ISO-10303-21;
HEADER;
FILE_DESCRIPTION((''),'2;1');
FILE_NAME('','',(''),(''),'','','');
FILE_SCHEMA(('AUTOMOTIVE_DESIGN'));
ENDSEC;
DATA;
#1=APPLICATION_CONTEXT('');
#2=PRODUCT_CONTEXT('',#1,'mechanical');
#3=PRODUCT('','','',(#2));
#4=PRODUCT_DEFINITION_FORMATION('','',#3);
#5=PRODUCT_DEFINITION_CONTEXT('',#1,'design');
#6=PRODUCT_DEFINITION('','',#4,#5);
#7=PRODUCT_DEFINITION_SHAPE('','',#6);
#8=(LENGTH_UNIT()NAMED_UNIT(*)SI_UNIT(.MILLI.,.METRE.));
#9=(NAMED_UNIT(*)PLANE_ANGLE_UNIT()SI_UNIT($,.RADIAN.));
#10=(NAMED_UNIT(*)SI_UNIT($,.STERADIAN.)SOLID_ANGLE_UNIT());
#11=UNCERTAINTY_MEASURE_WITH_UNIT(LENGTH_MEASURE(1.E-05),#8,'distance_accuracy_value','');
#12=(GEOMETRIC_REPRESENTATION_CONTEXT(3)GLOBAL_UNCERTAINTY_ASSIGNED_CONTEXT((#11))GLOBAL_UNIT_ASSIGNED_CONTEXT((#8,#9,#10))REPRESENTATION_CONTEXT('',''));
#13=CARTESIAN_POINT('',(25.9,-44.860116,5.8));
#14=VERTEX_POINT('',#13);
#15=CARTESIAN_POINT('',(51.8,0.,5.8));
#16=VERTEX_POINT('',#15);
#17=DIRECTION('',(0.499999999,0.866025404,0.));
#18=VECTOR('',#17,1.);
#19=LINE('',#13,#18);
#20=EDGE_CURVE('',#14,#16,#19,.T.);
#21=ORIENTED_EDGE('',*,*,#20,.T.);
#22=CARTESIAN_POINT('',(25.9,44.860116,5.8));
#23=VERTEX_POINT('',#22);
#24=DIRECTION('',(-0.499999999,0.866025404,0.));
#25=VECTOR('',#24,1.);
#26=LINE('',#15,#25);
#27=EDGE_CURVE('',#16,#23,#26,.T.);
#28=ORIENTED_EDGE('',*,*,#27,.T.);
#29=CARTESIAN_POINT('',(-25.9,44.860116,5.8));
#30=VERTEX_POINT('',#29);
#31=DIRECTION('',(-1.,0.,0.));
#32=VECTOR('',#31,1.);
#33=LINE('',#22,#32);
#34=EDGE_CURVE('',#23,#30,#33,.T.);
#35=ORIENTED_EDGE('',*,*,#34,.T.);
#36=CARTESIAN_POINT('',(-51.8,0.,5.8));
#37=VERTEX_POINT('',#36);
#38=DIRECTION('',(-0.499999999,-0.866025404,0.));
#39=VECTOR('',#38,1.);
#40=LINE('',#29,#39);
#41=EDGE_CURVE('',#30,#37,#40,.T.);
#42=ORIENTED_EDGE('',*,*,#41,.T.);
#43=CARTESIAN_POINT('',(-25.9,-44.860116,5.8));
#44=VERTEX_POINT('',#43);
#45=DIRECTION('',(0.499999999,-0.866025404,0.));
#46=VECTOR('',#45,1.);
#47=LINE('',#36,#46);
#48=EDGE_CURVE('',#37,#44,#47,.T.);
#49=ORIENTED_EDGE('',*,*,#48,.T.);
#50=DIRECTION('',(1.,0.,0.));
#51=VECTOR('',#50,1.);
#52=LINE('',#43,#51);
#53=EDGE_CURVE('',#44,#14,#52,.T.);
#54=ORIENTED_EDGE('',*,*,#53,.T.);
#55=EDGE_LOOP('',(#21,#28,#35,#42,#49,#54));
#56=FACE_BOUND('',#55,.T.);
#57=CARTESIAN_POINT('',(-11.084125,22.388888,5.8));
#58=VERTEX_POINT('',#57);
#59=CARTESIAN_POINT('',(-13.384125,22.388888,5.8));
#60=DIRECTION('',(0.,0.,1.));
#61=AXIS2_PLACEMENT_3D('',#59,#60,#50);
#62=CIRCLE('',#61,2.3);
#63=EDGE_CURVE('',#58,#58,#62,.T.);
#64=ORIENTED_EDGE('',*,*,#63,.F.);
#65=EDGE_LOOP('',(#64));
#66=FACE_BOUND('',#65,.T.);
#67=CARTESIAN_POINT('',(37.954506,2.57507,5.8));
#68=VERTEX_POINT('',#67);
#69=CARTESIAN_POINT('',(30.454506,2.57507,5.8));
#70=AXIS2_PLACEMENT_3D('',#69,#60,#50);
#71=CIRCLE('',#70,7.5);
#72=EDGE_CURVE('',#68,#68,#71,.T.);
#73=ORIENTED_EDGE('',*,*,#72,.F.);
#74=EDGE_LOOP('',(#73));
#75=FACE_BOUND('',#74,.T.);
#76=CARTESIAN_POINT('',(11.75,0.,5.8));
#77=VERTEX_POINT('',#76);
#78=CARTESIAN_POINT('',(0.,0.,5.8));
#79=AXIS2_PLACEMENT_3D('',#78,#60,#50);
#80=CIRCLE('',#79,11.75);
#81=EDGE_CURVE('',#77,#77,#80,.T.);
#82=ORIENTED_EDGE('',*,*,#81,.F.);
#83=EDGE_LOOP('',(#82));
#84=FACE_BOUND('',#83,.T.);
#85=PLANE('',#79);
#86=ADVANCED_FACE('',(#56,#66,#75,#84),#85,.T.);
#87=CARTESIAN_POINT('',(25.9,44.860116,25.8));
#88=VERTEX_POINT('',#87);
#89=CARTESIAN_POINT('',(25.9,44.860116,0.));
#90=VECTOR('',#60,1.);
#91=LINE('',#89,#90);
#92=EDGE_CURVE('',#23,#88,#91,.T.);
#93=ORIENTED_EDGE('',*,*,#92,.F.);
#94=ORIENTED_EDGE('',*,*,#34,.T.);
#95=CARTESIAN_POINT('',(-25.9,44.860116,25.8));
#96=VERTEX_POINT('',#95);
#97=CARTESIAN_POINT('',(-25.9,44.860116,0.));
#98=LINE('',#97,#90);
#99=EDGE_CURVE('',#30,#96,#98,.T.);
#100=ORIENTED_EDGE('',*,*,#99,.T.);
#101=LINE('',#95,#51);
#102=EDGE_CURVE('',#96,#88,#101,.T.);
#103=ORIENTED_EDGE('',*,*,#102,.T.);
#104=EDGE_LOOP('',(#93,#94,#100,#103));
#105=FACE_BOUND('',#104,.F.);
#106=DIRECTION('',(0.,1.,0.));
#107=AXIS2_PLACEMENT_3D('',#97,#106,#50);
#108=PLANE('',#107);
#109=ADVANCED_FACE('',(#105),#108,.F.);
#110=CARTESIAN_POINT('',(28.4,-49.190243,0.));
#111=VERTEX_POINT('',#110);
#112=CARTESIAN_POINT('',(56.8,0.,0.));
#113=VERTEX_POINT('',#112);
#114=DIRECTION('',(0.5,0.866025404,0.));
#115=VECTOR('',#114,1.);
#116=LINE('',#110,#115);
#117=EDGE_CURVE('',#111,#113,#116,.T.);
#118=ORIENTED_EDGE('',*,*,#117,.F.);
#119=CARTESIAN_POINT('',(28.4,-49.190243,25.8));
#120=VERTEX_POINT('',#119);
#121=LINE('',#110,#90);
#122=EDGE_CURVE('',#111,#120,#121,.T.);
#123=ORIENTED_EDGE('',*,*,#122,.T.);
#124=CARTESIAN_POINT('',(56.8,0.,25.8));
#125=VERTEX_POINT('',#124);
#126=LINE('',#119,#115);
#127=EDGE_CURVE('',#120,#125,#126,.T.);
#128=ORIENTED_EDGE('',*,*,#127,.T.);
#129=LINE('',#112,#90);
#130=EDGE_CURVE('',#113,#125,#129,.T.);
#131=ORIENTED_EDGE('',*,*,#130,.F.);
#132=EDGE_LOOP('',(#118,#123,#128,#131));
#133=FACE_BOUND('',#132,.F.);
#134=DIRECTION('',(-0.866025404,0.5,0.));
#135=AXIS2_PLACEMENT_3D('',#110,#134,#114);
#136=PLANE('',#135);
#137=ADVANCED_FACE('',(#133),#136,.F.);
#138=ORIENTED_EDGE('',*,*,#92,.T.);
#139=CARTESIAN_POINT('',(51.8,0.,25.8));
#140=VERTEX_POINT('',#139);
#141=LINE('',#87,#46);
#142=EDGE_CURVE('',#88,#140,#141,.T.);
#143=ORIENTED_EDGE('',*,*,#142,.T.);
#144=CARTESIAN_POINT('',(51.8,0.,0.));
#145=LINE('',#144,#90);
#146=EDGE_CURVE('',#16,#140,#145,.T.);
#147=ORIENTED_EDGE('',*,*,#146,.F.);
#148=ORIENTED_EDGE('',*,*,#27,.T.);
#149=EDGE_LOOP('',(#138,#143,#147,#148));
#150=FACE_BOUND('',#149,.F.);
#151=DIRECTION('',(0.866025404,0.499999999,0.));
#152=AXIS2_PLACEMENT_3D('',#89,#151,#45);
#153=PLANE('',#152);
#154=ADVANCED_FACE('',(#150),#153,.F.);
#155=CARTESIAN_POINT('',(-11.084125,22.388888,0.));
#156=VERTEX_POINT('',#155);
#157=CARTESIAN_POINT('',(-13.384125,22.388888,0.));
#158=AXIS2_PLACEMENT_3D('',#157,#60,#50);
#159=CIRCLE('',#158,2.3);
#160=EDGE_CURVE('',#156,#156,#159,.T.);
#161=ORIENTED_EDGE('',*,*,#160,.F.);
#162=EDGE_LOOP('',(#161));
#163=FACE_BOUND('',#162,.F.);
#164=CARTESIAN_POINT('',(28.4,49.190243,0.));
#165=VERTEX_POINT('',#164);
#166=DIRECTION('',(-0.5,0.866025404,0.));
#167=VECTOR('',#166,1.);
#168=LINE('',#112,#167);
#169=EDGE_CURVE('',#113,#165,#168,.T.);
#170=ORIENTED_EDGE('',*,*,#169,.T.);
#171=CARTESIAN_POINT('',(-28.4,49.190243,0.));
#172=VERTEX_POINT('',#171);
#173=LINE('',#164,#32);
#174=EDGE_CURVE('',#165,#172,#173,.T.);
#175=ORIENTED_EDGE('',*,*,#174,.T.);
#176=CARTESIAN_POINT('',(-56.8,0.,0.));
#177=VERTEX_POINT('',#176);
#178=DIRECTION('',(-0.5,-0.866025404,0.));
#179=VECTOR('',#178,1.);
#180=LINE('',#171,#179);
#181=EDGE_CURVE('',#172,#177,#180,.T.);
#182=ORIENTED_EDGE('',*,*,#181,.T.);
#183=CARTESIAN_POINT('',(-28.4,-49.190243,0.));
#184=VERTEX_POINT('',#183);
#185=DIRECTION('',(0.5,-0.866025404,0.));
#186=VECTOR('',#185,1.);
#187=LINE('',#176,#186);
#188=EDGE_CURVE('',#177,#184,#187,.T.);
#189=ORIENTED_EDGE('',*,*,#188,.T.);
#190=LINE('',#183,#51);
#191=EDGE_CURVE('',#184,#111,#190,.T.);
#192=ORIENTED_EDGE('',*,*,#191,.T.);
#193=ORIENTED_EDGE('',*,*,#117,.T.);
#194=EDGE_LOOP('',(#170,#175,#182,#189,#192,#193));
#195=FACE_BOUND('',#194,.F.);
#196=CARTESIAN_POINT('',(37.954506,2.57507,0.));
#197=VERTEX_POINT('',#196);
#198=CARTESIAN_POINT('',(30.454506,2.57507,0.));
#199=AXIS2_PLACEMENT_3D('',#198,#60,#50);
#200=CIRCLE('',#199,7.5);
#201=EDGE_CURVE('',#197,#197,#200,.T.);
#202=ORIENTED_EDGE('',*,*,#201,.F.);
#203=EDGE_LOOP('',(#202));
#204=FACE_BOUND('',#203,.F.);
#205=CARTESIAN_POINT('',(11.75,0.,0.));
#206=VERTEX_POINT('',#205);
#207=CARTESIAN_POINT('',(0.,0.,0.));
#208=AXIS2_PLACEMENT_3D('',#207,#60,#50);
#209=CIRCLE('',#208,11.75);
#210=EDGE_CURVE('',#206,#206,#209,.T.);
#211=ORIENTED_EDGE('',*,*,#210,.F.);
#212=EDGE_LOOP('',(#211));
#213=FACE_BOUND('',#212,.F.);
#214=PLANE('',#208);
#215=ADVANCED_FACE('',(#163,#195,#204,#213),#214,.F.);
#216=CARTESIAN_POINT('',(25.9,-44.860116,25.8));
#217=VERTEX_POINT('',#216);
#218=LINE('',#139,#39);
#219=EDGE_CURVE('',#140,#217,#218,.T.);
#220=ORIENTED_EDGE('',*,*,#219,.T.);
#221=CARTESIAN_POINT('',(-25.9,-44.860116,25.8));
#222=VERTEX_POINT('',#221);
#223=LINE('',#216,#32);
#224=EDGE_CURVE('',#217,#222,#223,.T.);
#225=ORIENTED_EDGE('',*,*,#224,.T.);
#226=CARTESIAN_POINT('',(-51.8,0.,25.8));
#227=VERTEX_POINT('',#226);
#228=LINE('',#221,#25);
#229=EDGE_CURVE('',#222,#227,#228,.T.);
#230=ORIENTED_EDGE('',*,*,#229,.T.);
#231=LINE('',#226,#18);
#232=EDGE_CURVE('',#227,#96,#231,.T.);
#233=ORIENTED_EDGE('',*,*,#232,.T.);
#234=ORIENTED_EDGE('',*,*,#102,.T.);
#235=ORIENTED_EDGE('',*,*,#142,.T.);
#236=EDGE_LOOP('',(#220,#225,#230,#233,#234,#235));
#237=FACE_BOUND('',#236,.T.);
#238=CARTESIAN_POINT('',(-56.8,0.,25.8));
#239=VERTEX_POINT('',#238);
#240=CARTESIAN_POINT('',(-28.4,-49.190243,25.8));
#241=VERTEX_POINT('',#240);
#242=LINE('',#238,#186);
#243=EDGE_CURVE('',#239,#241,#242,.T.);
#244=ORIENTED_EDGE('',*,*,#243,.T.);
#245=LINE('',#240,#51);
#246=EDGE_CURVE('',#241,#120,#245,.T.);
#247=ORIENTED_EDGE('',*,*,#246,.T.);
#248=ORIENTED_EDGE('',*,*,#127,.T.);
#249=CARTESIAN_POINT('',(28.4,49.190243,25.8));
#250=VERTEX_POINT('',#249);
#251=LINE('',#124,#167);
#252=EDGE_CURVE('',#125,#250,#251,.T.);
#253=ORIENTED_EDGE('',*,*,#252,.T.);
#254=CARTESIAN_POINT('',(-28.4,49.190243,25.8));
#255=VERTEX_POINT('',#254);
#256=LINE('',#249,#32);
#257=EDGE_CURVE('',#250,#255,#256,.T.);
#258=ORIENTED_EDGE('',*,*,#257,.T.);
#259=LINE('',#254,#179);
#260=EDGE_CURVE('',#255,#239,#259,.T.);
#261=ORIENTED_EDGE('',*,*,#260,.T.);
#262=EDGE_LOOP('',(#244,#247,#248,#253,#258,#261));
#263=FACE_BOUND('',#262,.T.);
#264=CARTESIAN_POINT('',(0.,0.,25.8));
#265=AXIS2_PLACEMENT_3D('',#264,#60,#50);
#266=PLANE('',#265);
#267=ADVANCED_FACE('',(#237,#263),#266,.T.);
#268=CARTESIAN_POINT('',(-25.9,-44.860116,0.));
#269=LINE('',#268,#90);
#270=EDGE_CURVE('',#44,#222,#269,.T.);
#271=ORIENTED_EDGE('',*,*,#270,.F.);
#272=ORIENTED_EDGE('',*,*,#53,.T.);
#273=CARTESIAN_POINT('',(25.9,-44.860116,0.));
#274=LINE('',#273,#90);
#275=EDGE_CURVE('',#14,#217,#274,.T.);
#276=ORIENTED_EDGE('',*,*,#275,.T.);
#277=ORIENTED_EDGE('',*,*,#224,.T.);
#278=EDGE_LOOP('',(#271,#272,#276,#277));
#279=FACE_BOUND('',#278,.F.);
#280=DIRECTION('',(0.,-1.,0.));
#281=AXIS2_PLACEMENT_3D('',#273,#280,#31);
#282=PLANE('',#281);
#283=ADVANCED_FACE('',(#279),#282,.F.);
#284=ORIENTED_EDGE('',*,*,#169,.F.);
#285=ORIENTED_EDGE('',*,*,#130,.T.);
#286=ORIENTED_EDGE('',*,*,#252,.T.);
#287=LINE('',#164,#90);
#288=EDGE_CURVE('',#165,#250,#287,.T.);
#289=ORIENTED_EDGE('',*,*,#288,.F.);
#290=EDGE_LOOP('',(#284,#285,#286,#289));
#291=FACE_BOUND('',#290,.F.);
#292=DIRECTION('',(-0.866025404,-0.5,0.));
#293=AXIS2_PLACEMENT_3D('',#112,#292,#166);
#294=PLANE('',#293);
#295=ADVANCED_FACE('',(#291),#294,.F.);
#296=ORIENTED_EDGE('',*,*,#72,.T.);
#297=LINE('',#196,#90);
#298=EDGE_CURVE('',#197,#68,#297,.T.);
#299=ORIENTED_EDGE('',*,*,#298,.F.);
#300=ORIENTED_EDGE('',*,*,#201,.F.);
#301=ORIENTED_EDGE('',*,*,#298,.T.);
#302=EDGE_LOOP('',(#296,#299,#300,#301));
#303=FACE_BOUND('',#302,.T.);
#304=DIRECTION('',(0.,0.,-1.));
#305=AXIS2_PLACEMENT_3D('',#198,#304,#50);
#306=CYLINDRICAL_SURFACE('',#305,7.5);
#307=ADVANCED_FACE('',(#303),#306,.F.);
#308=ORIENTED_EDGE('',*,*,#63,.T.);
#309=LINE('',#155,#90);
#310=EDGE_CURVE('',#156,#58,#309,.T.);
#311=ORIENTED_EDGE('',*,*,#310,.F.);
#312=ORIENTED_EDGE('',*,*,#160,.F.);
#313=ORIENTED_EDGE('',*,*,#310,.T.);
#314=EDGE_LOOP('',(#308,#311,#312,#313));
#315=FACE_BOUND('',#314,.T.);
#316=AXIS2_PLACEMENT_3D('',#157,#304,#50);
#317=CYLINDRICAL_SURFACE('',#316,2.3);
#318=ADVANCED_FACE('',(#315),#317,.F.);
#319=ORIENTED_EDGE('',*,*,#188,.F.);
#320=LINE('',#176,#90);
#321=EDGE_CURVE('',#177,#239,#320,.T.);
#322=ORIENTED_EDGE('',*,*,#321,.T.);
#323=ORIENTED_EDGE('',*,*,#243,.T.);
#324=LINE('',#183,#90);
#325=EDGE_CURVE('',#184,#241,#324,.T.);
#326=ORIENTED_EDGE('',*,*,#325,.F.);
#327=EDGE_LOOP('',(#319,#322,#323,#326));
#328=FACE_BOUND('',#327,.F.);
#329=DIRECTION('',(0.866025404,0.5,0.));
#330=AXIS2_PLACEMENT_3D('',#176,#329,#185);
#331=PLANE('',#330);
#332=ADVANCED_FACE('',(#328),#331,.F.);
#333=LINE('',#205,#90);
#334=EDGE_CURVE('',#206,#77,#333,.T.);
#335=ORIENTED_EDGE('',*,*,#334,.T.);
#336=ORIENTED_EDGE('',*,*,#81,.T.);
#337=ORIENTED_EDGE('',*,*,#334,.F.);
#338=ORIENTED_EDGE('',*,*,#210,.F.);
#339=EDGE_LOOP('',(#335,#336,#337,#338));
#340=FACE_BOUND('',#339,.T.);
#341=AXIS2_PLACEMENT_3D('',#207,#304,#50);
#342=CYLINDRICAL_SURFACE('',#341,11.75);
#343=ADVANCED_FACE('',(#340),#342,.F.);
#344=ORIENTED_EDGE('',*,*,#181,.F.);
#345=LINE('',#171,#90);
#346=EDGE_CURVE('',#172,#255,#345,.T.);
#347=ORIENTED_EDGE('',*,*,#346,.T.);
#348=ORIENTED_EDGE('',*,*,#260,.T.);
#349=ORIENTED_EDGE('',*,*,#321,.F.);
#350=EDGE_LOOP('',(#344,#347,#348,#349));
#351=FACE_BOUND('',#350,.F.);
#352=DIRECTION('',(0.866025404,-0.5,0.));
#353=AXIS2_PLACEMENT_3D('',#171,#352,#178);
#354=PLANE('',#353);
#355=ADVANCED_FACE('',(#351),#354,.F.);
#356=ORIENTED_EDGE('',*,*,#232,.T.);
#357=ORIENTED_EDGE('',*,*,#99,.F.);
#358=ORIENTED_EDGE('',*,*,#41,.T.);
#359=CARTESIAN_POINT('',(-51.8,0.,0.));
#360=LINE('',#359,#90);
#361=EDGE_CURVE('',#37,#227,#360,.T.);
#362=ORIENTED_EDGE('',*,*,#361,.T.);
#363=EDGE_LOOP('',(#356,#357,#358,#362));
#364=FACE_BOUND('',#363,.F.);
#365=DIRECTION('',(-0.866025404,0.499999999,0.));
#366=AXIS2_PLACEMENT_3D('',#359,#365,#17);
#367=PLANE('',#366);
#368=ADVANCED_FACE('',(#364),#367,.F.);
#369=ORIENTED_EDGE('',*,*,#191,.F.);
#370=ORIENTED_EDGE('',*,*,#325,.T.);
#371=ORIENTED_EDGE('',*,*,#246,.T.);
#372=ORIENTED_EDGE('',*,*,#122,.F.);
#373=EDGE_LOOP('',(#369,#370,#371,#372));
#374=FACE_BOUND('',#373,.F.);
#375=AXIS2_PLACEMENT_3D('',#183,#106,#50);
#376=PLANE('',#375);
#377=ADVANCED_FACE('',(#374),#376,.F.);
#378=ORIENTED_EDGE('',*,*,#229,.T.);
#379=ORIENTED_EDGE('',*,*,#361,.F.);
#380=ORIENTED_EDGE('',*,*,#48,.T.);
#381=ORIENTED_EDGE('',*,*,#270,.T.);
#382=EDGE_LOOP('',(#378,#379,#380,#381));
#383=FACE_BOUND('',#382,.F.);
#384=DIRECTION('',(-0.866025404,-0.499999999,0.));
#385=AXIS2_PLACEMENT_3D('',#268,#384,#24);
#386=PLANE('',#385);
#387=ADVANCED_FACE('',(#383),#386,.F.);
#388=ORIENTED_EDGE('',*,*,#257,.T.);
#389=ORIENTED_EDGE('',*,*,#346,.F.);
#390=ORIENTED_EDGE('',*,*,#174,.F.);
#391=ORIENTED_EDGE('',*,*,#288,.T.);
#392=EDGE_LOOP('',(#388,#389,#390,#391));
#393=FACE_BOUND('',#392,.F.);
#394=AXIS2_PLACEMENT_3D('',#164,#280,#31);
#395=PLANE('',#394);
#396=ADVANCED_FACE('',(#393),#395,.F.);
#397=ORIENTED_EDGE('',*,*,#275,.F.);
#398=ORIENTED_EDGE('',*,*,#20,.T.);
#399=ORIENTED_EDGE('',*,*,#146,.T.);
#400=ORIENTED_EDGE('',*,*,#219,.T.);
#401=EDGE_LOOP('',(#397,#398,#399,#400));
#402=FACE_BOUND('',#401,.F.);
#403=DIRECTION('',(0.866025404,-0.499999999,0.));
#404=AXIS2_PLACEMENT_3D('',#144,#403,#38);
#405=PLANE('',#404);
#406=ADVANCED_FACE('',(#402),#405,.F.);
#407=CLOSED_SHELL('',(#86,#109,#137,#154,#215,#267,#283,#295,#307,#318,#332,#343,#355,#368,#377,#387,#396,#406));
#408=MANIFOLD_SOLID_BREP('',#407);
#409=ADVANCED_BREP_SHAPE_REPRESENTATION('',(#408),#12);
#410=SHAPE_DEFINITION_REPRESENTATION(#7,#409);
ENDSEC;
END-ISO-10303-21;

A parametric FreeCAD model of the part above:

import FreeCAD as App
import Part
import Sketcher
from FreeCAD import Vector
Q = App.Units.Quantity

doc = App.newDocument("Part")
body = doc.addObject("PartDesign::Body", "Body")

sketch1 = body.newObject("Sketcher::SketchObject", "Sketch")
sketch1.AttachmentSupport = (doc.getObject("XY_Plane"), [""])
sketch1.MapMode = "FlatFace"
sketch1.addGeometry([
    Part.LineSegment(Vector(25.9, 44.860116, 0), Vector(-25.9, 44.860116, 0)),
    Part.LineSegment(Vector(-25.9, 44.860116, 0), Vector(-51.8, 0, 0)),
    Part.LineSegment(Vector(-51.8, 0, 0), Vector(-25.9, -44.860116, 0)),
    Part.LineSegment(Vector(-25.9, -44.860116, 0), Vector(25.9, -44.860116, 0)),
    Part.LineSegment(Vector(25.9, -44.860116, 0), Vector(51.8, 0, 0)),
    Part.LineSegment(Vector(51.8, 0, 0), Vector(25.9, 44.860116, 0)),
    Part.Circle(Vector(0, 0, 0), Vector(0, 0, 1), 11.75),
    Part.Circle(Vector(30.454506, 2.57507, 0), Vector(0, 0, 1), 7.5),
    Part.Circle(Vector(-13.384125, 22.388888, 0), Vector(0, 0, 1), 2.3),
], False)
sketch1.addConstraint([
    Sketcher.Constraint("Coincident", 0, 2, 1, 1),
    Sketcher.Constraint("Coincident", 1, 2, 2, 1),
    Sketcher.Constraint("Coincident", 2, 2, 3, 1),
    Sketcher.Constraint("Coincident", 3, 2, 4, 1),
    Sketcher.Constraint("Coincident", 4, 2, 5, 1),
    Sketcher.Constraint("Coincident", 5, 2, 0, 1),
    Sketcher.Constraint("Horizontal", 0),
    Sketcher.Constraint("Horizontal", 3),
    Sketcher.Constraint("Coincident", 6, 3, -1, 1),
    Sketcher.Constraint("Symmetric", 0, 2, 3, 2, -1, 1),
    Sketcher.Constraint("Symmetric", 1, 2, 4, 2, -1, 1),
    Sketcher.Constraint("PointOnObject", 1, 2, -1),
    Sketcher.Constraint("Parallel", 2, 5),
    Sketcher.Constraint("Vertical", 0, 2, 2, 2),
    Sketcher.Constraint("Diameter", 7, 15.0),
    Sketcher.Constraint("Diameter", 6, 23.5),
    Sketcher.Constraint("Diameter", 8, 4.6),
    Sketcher.Constraint("Angle", 1, Q("-120 deg")),
    Sketcher.Constraint("DistanceX", 0, 2, 0, 1, 51.8),
    Sketcher.Constraint("Distance", 1, 51.8),
    Sketcher.Constraint("DistanceY", -1, 1, 7, 3, 2.57507),
    Sketcher.Constraint("DistanceY", -1, 1, 8, 3, 22.388888),
    Sketcher.Constraint("DistanceX", 8, 3, 7, 3, 43.838631),
    Sketcher.Constraint("DistanceX", -1, 1, 7, 3, 30.454506),
])
pad1 = body.newObject("PartDesign::Pad", "Pad")
pad1.Profile = sketch1
pad1.Length = 5.8

sketch2 = body.newObject("Sketcher::SketchObject", "Sketch001")
sketch2.AttachmentSupport = (doc.getObject("XY_Plane"), [""])
sketch2.MapMode = "FlatFace"
sketch2.addGeometry([
    Part.LineSegment(Vector(28.4, 49.190243, 0), Vector(-28.4, 49.190243, 0)),
    Part.LineSegment(Vector(-28.4, 49.190243, 0), Vector(-56.8, 0, 0)),
    Part.LineSegment(Vector(-56.8, 0, 0), Vector(-28.4, -49.190243, 0)),
    Part.LineSegment(Vector(-28.4, -49.190243, 0), Vector(28.4, -49.190243, 0)),
    Part.LineSegment(Vector(28.4, -49.190243, 0), Vector(56.8, 0, 0)),
    Part.LineSegment(Vector(56.8, 0, 0), Vector(28.4, 49.190243, 0)),
    Part.LineSegment(Vector(-25.9, -44.860116, 0), Vector(-51.8, 0, 0)),
    Part.LineSegment(Vector(-51.8, 0, 0), Vector(-25.9, 44.860116, 0)),
    Part.LineSegment(Vector(-25.9, 44.860116, 0), Vector(25.9, 44.860116, 0)),
    Part.LineSegment(Vector(25.9, 44.860116, 0), Vector(51.8, 0, 0)),
    Part.LineSegment(Vector(51.8, 0, 0), Vector(25.9, -44.860116, 0)),
    Part.LineSegment(Vector(25.9, -44.860116, 0), Vector(-25.9, -44.860116, 0)),
], False)
sketch2.addConstraint([
    Sketcher.Constraint("Coincident", 0, 2, 1, 1),
    Sketcher.Constraint("Coincident", 1, 2, 2, 1),
    Sketcher.Constraint("Coincident", 2, 2, 3, 1),
    Sketcher.Constraint("Coincident", 3, 2, 4, 1),
    Sketcher.Constraint("Coincident", 4, 2, 5, 1),
    Sketcher.Constraint("Coincident", 5, 2, 0, 1),
    Sketcher.Constraint("Coincident", 6, 2, 7, 1),
    Sketcher.Constraint("Coincident", 7, 2, 8, 1),
    Sketcher.Constraint("Coincident", 8, 2, 9, 1),
    Sketcher.Constraint("Coincident", 9, 2, 10, 1),
    Sketcher.Constraint("Coincident", 10, 2, 11, 1),
    Sketcher.Constraint("Coincident", 11, 2, 6, 1),
    Sketcher.Constraint("Horizontal", 0),
    Sketcher.Constraint("Horizontal", 3),
    Sketcher.Constraint("Horizontal", 8),
    Sketcher.Constraint("Horizontal", 11),
    Sketcher.Constraint("Symmetric", 0, 2, 3, 2, -1, 1),
    Sketcher.Constraint("Symmetric", 1, 2, 4, 2, -1, 1),
    Sketcher.Constraint("Symmetric", 6, 2, 9, 2, -1, 1),
    Sketcher.Constraint("Symmetric", 7, 2, 10, 2, -1, 1),
    Sketcher.Constraint("PointOnObject", 1, 2, -1),
    Sketcher.Constraint("PointOnObject", 6, 2, -1),
    Sketcher.Constraint("Parallel", 2, 5),
    Sketcher.Constraint("Parallel", 5, 6),
    Sketcher.Constraint("Parallel", 4, 7),
    Sketcher.Constraint("Parallel", 6, 9),
    Sketcher.Constraint("Vertical", 0, 2, 2, 2),
    Sketcher.Constraint("Angle", 1, Q("-120 deg")),
    Sketcher.Constraint("DistanceX", 0, 2, 0, 1, 56.8),
    Sketcher.Constraint("DistanceX", 8, 1, 8, 2, 51.8),
    Sketcher.Constraint("DistanceX", 1, 2, 6, 2, 5.0),
    Sketcher.Constraint("Distance", 1, 56.8),
])
pad2 = body.newObject("PartDesign::Pad", "Pad001")
pad2.Profile = sketch2
pad2.Length = 25.8

doc.recompute()
